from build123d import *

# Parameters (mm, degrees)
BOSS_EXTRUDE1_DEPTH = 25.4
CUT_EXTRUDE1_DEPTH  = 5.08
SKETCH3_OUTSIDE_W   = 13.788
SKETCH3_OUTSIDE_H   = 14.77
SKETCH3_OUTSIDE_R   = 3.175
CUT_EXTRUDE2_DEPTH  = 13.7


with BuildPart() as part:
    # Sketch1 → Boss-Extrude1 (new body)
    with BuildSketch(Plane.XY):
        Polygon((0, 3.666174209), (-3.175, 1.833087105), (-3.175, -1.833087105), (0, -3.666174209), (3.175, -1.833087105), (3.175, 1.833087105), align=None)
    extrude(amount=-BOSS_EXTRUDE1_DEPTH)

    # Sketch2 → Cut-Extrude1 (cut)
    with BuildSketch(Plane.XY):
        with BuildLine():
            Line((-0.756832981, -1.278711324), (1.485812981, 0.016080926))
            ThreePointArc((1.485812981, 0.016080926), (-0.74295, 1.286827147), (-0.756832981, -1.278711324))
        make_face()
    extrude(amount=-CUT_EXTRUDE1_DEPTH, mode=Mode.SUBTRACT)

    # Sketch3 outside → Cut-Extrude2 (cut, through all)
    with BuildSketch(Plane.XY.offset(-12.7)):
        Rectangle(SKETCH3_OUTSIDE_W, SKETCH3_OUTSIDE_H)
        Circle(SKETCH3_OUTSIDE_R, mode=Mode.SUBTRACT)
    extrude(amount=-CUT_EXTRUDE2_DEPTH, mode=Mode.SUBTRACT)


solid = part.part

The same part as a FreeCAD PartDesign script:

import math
import FreeCAD as App
import Part
import Sketcher
from FreeCAD import Vector
Q = App.Units.Quantity

doc = App.newDocument("Part")
body = doc.addObject("PartDesign::Body", "Body")

sketch1 = body.newObject("Sketcher::SketchObject", "Sketch")
sketch1.AttachmentSupport = (doc.getObject("XY_Plane"), [""])
sketch1.MapMode = "FlatFace"
sketch1.addGeometry(Part.LineSegment(Vector(0, 3.7, 0), Vector(-3.2, 1.8, 0)), False)
sketch1.addGeometry(Part.LineSegment(Vector(-3.2, 1.8, 0), Vector(-3.2, -1.8, 0)), False)
sketch1.addGeometry(Part.LineSegment(Vector(-3.2, -1.8, 0), Vector(0, -3.7, 0)), False)
sketch1.addGeometry(Part.LineSegment(Vector(0, -3.7, 0), Vector(3.2, -1.8, 0)), False)
sketch1.addGeometry(Part.LineSegment(Vector(3.2, -1.8, 0), Vector(3.2, 1.8, 0)), False)
sketch1.addGeometry(Part.LineSegment(Vector(3.2, 1.8, 0), Vector(0, 3.7, 0)), False)
sketch1.addConstraint(Sketcher.Constraint("Coincident", 0, 2, 1, 1))
sketch1.addConstraint(Sketcher.Constraint("Coincident", 1, 2, 2, 1))
sketch1.addConstraint(Sketcher.Constraint("Coincident", 2, 2, 3, 1))
sketch1.addConstraint(Sketcher.Constraint("Coincident", 3, 2, 4, 1))
sketch1.addConstraint(Sketcher.Constraint("Coincident", 4, 2, 5, 1))
sketch1.addConstraint(Sketcher.Constraint("Coincident", 5, 2, 0, 1))
sketch1.addConstraint(Sketcher.Constraint("Vertical", 1))
sketch1.addConstraint(Sketcher.Constraint("Vertical", 4))
sketch1.addConstraint(Sketcher.Constraint("Symmetric", 0, 2, 3, 2, -1, 1))
sketch1.addConstraint(Sketcher.Constraint("Symmetric", 2, 2, 5, 2, -1, 1))
sketch1.addConstraint(Sketcher.Constraint("PointOnObject", 2, 2, -2))
sketch1.addConstraint(Sketcher.Constraint("Parallel", 2, 5))
sketch1.addConstraint(Sketcher.Constraint("Horizontal", 1, 2, 3, 2))
sketch1.addConstraint(Sketcher.Constraint("Angle", 0, Q("-150 deg")))
sketch1.addConstraint(Sketcher.Constraint("DistanceX", 1, 2, 3, 2, Q("0.25 in")))
sketch1.addConstraint(Sketcher.Constraint("DistanceY", 1, 2, 1, 1, Q("3.666174 mm")))
pad1 = body.newObject("PartDesign::Pad", "Pad")
pad1.Profile = sketch1
pad1.Length = Q("1 in")
pad1.Reversed = True

sketch2 = body.newObject("Sketcher::SketchObject", "Sketch001")
sketch2.AttachmentSupport = (doc.getObject("XY_Plane"), [""])
sketch2.MapMode = "FlatFace"
sketch2.addGeometry(Part.LineSegment(Vector(-0.8, -1.3, 0), Vector(1.5, 0, 0)), False)
sketch2.addGeometry(Part.ArcOfCircle(Part.Circle(Vector(0, 0, 0), Vector(0, 0, 1), 1.5), math.radians(1), math.radians(239)), False)
sketch2.addConstraint(Sketcher.Constraint("Coincident", 0, 1, 1, 2))
sketch2.addConstraint(Sketcher.Constraint("Coincident", 1, 1, 0, 2))
sketch2.addConstraint(Sketcher.Constraint("Coincident", 1, 3, -1, 1))
sketch2.addConstraint(Sketcher.Constraint("Angle", 0, Q("30 deg")))
sketch2.addConstraint(Sketcher.Constraint("Radius", 1, Q("0.0585 in")))
sketch2.addConstraint(Sketcher.Constraint("DistanceY", 0, 1, -1, 1, Q("1.278711 mm")))
pocket1 = body.newObject("PartDesign::Pocket", "Pocket")
pocket1.Profile = sketch2
pocket1.Length = Q("0.2 in")

sketch3 = body.newObject("Sketcher::SketchObject", "Sketch002")
sketch3.AttachmentSupport = (doc.getObject("XY_Plane"), [""])
sketch3.MapMode = "FlatFace"
sketch3.AttachmentOffset = App.Placement(Vector(0, 0, -0.5 * 25.4), App.Rotation())
sketch3.addGeometry(Part.LineSegment(Vector(-6.9, 7.4, 0), Vector(-6.9, -7.4, 0)), False)
sketch3.addGeometry(Part.LineSegment(Vector(-6.9, -7.4, 0), Vector(6.9, -7.4, 0)), False)
sketch3.addGeometry(Part.LineSegment(Vector(6.9, -7.4, 0), Vector(6.9, 7.4, 0)), False)
sketch3.addGeometry(Part.LineSegment(Vector(6.9, 7.4, 0), Vector(-6.9, 7.4, 0)), False)
sketch3.addGeometry(Part.Circle(Vector(0, 0, 0), Vector(0, 0, 1), 3.2), False)
sketch3.addConstraint(Sketcher.Constraint("Coincident", 0, 2, 1, 1))
sketch3.addConstraint(Sketcher.Constraint("Coincident", 1, 2, 2, 1))
sketch3.addConstraint(Sketcher.Constraint("Coincident", 2, 2, 3, 1))
sketch3.addConstraint(Sketcher.Constraint("Coincident", 3, 2, 0, 1))
sketch3.addConstraint(Sketcher.Constraint("Vertical", 0))
sketch3.addConstraint(Sketcher.Constraint("Horizontal", 1))
sketch3.addConstraint(Sketcher.Constraint("Vertical", 2))
sketch3.addConstraint(Sketcher.Constraint("Horizontal", 3))
sketch3.addConstraint(Sketcher.Constraint("Coincident", 4, 3, -1, 1))
sketch3.addConstraint(Sketcher.Constraint("Symmetric", 0, 2, 2, 2, -1, 1))
sketch3.addConstraint(Sketcher.Constraint("Diameter", 4, Q("0.25 in")))
sketch3.addConstraint(Sketcher.Constraint("DistanceX", 1, 1, 1, 2, Q("13.788 mm")))
sketch3.addConstraint(Sketcher.Constraint("DistanceY", 0, 2, 0, 1, Q("14.77 mm")))
pocket2 = body.newObject("PartDesign::Pocket", "Pocket001")
pocket2.Profile = sketch3
pocket2.Type = "ThroughAll"

doc.recompute()
